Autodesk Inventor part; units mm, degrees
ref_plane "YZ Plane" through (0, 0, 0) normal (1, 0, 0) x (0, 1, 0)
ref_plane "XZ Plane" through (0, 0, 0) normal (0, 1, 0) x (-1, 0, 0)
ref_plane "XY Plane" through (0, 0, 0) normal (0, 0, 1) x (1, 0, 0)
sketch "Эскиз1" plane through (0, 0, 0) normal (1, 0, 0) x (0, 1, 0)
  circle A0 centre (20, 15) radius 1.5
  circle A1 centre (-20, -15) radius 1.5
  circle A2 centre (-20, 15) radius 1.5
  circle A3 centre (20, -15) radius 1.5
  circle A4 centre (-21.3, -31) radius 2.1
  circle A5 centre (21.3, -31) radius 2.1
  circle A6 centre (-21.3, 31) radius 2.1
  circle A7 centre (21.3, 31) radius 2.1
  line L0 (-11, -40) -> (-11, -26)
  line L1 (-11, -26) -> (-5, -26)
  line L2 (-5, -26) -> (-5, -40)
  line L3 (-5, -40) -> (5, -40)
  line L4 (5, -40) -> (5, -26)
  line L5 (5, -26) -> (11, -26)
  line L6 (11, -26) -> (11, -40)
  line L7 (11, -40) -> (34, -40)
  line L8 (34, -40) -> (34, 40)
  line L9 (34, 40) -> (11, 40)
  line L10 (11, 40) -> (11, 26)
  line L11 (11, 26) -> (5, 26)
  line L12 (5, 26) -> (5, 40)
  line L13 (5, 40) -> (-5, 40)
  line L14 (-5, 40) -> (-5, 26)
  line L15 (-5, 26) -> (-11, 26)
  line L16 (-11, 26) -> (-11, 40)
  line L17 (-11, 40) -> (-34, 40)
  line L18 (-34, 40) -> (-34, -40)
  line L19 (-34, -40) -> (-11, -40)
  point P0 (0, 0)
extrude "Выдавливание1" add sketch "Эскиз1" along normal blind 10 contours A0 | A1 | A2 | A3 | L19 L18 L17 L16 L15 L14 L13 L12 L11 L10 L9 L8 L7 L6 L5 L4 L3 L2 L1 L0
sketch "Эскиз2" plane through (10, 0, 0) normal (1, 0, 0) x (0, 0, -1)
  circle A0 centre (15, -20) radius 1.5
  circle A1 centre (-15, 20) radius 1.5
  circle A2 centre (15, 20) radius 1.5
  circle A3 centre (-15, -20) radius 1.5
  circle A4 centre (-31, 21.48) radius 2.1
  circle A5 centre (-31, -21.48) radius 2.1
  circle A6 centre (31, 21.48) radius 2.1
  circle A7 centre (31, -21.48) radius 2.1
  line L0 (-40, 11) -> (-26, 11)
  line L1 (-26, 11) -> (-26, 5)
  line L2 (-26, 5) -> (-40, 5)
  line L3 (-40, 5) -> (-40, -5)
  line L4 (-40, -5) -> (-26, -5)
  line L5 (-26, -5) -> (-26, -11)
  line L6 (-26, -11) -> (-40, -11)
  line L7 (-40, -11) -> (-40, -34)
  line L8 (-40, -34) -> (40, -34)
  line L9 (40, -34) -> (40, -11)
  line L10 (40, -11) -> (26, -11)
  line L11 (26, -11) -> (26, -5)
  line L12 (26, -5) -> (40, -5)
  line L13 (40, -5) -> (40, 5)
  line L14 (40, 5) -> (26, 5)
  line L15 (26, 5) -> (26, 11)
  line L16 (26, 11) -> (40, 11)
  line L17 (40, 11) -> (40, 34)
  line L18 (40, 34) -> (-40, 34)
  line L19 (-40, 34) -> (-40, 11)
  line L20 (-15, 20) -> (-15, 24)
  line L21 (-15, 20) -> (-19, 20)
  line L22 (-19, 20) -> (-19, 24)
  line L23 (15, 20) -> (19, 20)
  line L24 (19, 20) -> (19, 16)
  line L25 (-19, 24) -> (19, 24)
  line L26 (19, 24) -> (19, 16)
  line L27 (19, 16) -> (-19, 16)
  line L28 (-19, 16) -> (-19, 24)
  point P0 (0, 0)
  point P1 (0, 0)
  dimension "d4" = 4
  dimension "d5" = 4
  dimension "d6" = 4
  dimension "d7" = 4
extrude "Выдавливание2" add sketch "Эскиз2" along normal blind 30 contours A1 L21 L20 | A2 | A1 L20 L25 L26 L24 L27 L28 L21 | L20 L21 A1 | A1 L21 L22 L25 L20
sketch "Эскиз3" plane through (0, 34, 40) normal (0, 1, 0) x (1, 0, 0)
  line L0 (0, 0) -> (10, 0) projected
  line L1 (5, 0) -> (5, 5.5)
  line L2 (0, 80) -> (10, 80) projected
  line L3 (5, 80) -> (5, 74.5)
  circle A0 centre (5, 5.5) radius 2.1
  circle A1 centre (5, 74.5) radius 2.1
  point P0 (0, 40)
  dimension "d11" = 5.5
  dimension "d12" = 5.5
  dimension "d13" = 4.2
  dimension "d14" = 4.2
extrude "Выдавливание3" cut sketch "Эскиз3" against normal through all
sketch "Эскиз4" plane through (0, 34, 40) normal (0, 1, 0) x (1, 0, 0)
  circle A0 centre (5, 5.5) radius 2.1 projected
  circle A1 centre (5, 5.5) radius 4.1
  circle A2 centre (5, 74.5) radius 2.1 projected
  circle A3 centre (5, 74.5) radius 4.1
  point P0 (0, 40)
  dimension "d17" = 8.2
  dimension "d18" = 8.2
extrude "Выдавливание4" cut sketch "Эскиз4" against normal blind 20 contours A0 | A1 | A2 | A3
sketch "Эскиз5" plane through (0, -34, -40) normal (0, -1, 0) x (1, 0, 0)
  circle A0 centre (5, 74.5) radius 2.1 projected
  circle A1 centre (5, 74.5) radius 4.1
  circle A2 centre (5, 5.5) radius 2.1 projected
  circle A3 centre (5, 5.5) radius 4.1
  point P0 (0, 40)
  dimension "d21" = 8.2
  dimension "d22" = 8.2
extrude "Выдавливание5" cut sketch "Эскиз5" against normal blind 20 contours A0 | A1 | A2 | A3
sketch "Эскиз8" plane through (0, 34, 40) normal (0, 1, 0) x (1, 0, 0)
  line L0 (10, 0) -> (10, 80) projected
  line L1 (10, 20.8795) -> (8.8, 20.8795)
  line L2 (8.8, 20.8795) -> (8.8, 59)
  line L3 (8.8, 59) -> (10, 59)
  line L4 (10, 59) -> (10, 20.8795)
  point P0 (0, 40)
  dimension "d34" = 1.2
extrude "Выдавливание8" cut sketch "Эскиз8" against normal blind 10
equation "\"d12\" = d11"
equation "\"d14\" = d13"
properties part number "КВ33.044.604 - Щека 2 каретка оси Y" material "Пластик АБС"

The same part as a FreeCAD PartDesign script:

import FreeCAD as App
import Part
import Sketcher
from FreeCAD import Vector
Q = App.Units.Quantity


def add_polygon(sketch, points):
    """Adds a closed chain of lines whose ends are joined by coincident constraints."""
    first, n = sketch.GeometryCount, len(points)
    for a, b in zip(points, points[1:] + points[:1]):
        sketch.addGeometry(Part.LineSegment(App.Vector(*a, 0), App.Vector(*b, 0)), False)
    for i in range(n):
        sketch.addConstraint(Sketcher.Constraint("Coincident", first + i, 2, first + (i + 1) % n, 1))

doc = App.newDocument("Part")
body = doc.addObject("PartDesign::Body", "Body")

# Sketch on YZ plane
sketch1 = body.newObject("Sketcher::SketchObject", "Sketch")
sketch1.AttachmentSupport = (doc.getObject("YZ_Plane"), [""])
sketch1.MapMode = "FlatFace"
add_polygon(sketch1, [(-34, -40), (-11, -40), (-11, -26), (-5, -26), (-5, -40), (5, -40), (5, -26), (11, -26), (11, -40), (34, -40), (34, 40), (11, 40), (11, 26), (5, 26), (5, 40), (-5, 40), (-5, 26), (-11, 26), (-11, 40), (-34, 40)])  # lines 0-19
sketch1.addGeometry(Part.Circle(Vector(-21.3, -31, 0), Vector(0, 0, 1), 2.1), False)  # 20
sketch1.addGeometry(Part.Circle(Vector(21.3, -31, 0), Vector(0, 0, 1), 2.1), False)  # 21
sketch1.addGeometry(Part.Circle(Vector(-21.3, 31, 0), Vector(0, 0, 1), 2.1), False)  # 22
sketch1.addGeometry(Part.Circle(Vector(21.3, 31, 0), Vector(0, 0, 1), 2.1), False)  # 23
sketch1.addConstraint(Sketcher.Constraint("Horizontal", 0))
sketch1.addConstraint(Sketcher.Constraint("Vertical", 1))
sketch1.addConstraint(Sketcher.Constraint("Horizontal", 2))
sketch1.addConstraint(Sketcher.Constraint("Vertical", 3))
sketch1.addConstraint(Sketcher.Constraint("Horizontal", 4))
sketch1.addConstraint(Sketcher.Constraint("Vertical", 5))
sketch1.addConstraint(Sketcher.Constraint("Horizontal", 6))
sketch1.addConstraint(Sketcher.Constraint("Vertical", 7))
sketch1.addConstraint(Sketcher.Constraint("Horizontal", 8))
sketch1.addConstraint(Sketcher.Constraint("Vertical", 9))
sketch1.addConstraint(Sketcher.Constraint("Horizontal", 10))
sketch1.addConstraint(Sketcher.Constraint("Vertical", 11))
sketch1.addConstraint(Sketcher.Constraint("Horizontal", 12))
sketch1.addConstraint(Sketcher.Constraint("Vertical", 13))
sketch1.addConstraint(Sketcher.Constraint("Horizontal", 14))
sketch1.addConstraint(Sketcher.Constraint("Vertical", 15))
sketch1.addConstraint(Sketcher.Constraint("Horizontal", 16))
sketch1.addConstraint(Sketcher.Constraint("Vertical", 17))
sketch1.addConstraint(Sketcher.Constraint("Horizontal", 18))
sketch1.addConstraint(Sketcher.Constraint("Vertical", 19))
sketch1.addConstraint(Sketcher.Constraint("Equal", 20, 21))
sketch1.addConstraint(Sketcher.Constraint("Equal", 21, 22))
sketch1.addConstraint(Sketcher.Constraint("Equal", 22, 23))
sketch1.addConstraint(Sketcher.Constraint("Symmetric", 21, 3, 22, 3, -1, 1))
sketch1.addConstraint(Sketcher.Constraint("Symmetric", 20, 3, 23, 3, -1, 1))
sketch1.addConstraint(Sketcher.Constraint("Symmetric", 0, 2, 10, 2, -1, 1))
sketch1.addConstraint(Sketcher.Constraint("Symmetric", 2, 2, 12, 2, -1, 1))
sketch1.addConstraint(Sketcher.Constraint("Symmetric", 4, 2, 14, 2, -1, 1))
sketch1.addConstraint(Sketcher.Constraint("Symmetric", 6, 2, 16, 2, -1, 1))
sketch1.addConstraint(Sketcher.Constraint("Symmetric", 8, 2, 18, 2, -1, 1))
sketch1.addConstraint(Sketcher.Constraint("Symmetric", 20, 3, 21, 3, -2))
sketch1.addConstraint(Sketcher.Constraint("Symmetric", 2, 2, 5, 2, -2))
sketch1.addConstraint(Sketcher.Constraint("Symmetric", 0, 2, 7, 2, -2))
sketch1.addConstraint(Sketcher.Constraint("Horizontal", 0, 2, 3, 2))
sketch1.addConstraint(Sketcher.Constraint("Diameter", 20, Q("4.2 mm")))
sketch1.addConstraint(Sketcher.Constraint("DistanceX", 0, 1, 0, 2, Q("23 mm")))
sketch1.addConstraint(Sketcher.Constraint("DistanceX", 2, 1, 2, 2, Q("6 mm")))
sketch1.addConstraint(Sketcher.Constraint("DistanceX", 4, 1, 4, 2, Q("10 mm")))
sketch1.addConstraint(Sketcher.Constraint("DistanceY", 1, 1, 1, 2, Q("14 mm")))
sketch1.addConstraint(Sketcher.Constraint("DistanceY", 9, 1, 9, 2, Q("80 mm")))
sketch1.addConstraint(Sketcher.Constraint("DistanceY", 20, 3, -1, 1, Q("31 mm")))
sketch1.addConstraint(Sketcher.Constraint("DistanceX", 20, 3, -1, 1, Q("21.3 mm")))
pad1 = body.newObject("PartDesign::Pad", "Pad")
pad1.Profile = sketch1
pad1.Length = 10

# Sketch on YZ plane
sketch2 = body.newObject("Sketcher::SketchObject", "Sketch001")
sketch2.AttachmentSupport = (doc.getObject("YZ_Plane"), [""])
sketch2.MapMode = "FlatFace"
sketch2.AttachmentOffset = App.Placement(Vector(0, 0, 10), App.Rotation())
add_polygon(sketch2, [(24, -19), (24, 19), (16, 19), (16, -19), (20, -19)])  # lines 0-4
sketch2.addConstraint(Sketcher.Constraint("Vertical", 0))
sketch2.addConstraint(Sketcher.Constraint("Horizontal", 1))
sketch2.addConstraint(Sketcher.Constraint("Vertical", 2))
sketch2.addConstraint(Sketcher.Constraint("Horizontal", 3))
sketch2.addConstraint(Sketcher.Constraint("Horizontal", 4))
sketch2.addConstraint(Sketcher.Constraint("Equal", 3, 4))
sketch2.addConstraint(Sketcher.Constraint("DistanceX", 3, 1, 3, 2, Q("4 mm")))
sketch2.addConstraint(Sketcher.Constraint("DistanceY", 0, 1, 0, 2, Q("38 mm")))
sketch2.addConstraint(Sketcher.Constraint("DistanceX", -1, 1, 0, 2, Q("24 mm")))
sketch2.addConstraint(Sketcher.Constraint("DistanceY", -1, 1, 0, 2, Q("19 mm")))
pad2 = body.newObject("PartDesign::Pad", "Pad001")
pad2.Profile = sketch2
pad2.Length = 30

# Sketch on XZ plane
sketch3 = body.newObject("Sketcher::SketchObject", "Sketch002")
sketch3.AttachmentSupport = (doc.getObject("XZ_Plane"), [""])
sketch3.MapMode = "FlatFace"
sketch3.AttachmentOffset = App.Placement(Vector(0, 0, -34), App.Rotation())
sketch3.addGeometry(Part.Circle(Vector(5, 34.5, 0), Vector(0, 0, 1), 2.1), False)
sketch3.addGeometry(Part.Circle(Vector(5, -34.5, 0), Vector(0, 0, 1), 2.1), False)
sketch3.addConstraint(Sketcher.Constraint("Equal", 0, 1))
sketch3.addConstraint(Sketcher.Constraint("Symmetric", 0, 3, 1, 3, -1))
sketch3.addConstraint(Sketcher.Constraint("Diameter", 0, Q("4.2 mm")))
sketch3.addConstraint(Sketcher.Constraint("DistanceX", -1, 1, 0, 3, Q("5 mm")))
sketch3.addConstraint(Sketcher.Constraint("DistanceY", 1, 3, 0, 3, Q("69 mm")))
pocket1 = body.newObject("PartDesign::Pocket", "Pocket")
pocket1.Profile = sketch3
pocket1.Type = "ThroughAll"
pocket1.Reversed = True

# Sketch on XZ plane
sketch4 = body.newObject("Sketcher::SketchObject", "Sketch003")
sketch4.AttachmentSupport = (doc.getObject("XZ_Plane"), [""])
sketch4.MapMode = "FlatFace"
sketch4.AttachmentOffset = App.Placement(Vector(0, 0, -34), App.Rotation())
sketch4.addGeometry(Part.Circle(Vector(5, 34.5, 0), Vector(0, 0, 1), 4.1), False)
sketch4.addGeometry(Part.Circle(Vector(5, -34.5, 0), Vector(0, 0, 1), 4.1), False)
sketch4.addConstraint(Sketcher.Constraint("Equal", 0, 1))
sketch4.addConstraint(Sketcher.Constraint("Symmetric", 0, 3, 1, 3, -1))
sketch4.addConstraint(Sketcher.Constraint("Diameter", 0, Q("8.2 mm")))
sketch4.addConstraint(Sketcher.Constraint("DistanceX", -1, 1, 0, 3, Q("5 mm")))
sketch4.addConstraint(Sketcher.Constraint("DistanceY", 1, 3, 0, 3, Q("69 mm")))
pocket2 = body.newObject("PartDesign::Pocket", "Pocket001")
pocket2.Profile = sketch4
pocket2.Length = 20
pocket2.Reversed = True

# Sketch on XZ plane
sketch5 = body.newObject("Sketcher::SketchObject", "Sketch004")
sketch5.AttachmentSupport = (doc.getObject("XZ_Plane"), [""])
sketch5.MapMode = "FlatFace"
sketch5.AttachmentOffset = App.Placement(Vector(0, 0, 34), App.Rotation())
sketch5.addGeometry(Part.Circle(Vector(5, 34.5, 0), Vector(0, 0, 1), 4.1), False)
sketch5.addGeometry(Part.Circle(Vector(5, -34.5, 0), Vector(0, 0, 1), 4.1), False)
sketch5.addConstraint(Sketcher.Constraint("Equal", 0, 1))
sketch5.addConstraint(Sketcher.Constraint("Symmetric", 0, 3, 1, 3, -1))
sketch5.addConstraint(Sketcher.Constraint("Diameter", 0, Q("8.2 mm")))
sketch5.addConstraint(Sketcher.Constraint("DistanceX", -1, 1, 0, 3, Q("5 mm")))
sketch5.addConstraint(Sketcher.Constraint("DistanceY", 1, 3, 0, 3, Q("69 mm")))
pocket3 = body.newObject("PartDesign::Pocket", "Pocket002")
pocket3.Profile = sketch5
pocket3.Length = 20

# Sketch on XZ plane
sketch6 = body.newObject("Sketcher::SketchObject", "Sketch005")
sketch6.AttachmentSupport = (doc.getObject("XZ_Plane"), [""])
sketch6.MapMode = "FlatFace"
sketch6.AttachmentOffset = App.Placement(Vector(0, 0, -34), App.Rotation())
add_polygon(sketch6, [(8.8, 19.1), (10, 19.1), (10, -19), (8.8, -19)])  # lines 0-3
sketch6.addConstraint(Sketcher.Constraint("Horizontal", 0))
sketch6.addConstraint(Sketcher.Constraint("Vertical", 1))
sketch6.addConstraint(Sketcher.Constraint("Horizontal", 2))
sketch6.addConstraint(Sketcher.Constraint("Vertical", 3))
sketch6.addConstraint(Sketcher.Constraint("DistanceX", 0, 1, 0, 2, Q("1.2 mm")))
sketch6.addConstraint(Sketcher.Constraint("DistanceX", -1, 1, 0, 2, Q("10 mm")))
sketch6.addConstraint(Sketcher.Constraint("DistanceY", 1, 2, -1, 1, Q("19 mm")))
sketch6.addConstraint(Sketcher.Constraint("DistanceY", 1, 2, 1, 1, Q("38.1205 mm")))
pocket4 = body.newObject("PartDesign::Pocket", "Pocket003")
pocket4.Profile = sketch6
pocket4.Length = 10
pocket4.Reversed = True

doc.recompute()
